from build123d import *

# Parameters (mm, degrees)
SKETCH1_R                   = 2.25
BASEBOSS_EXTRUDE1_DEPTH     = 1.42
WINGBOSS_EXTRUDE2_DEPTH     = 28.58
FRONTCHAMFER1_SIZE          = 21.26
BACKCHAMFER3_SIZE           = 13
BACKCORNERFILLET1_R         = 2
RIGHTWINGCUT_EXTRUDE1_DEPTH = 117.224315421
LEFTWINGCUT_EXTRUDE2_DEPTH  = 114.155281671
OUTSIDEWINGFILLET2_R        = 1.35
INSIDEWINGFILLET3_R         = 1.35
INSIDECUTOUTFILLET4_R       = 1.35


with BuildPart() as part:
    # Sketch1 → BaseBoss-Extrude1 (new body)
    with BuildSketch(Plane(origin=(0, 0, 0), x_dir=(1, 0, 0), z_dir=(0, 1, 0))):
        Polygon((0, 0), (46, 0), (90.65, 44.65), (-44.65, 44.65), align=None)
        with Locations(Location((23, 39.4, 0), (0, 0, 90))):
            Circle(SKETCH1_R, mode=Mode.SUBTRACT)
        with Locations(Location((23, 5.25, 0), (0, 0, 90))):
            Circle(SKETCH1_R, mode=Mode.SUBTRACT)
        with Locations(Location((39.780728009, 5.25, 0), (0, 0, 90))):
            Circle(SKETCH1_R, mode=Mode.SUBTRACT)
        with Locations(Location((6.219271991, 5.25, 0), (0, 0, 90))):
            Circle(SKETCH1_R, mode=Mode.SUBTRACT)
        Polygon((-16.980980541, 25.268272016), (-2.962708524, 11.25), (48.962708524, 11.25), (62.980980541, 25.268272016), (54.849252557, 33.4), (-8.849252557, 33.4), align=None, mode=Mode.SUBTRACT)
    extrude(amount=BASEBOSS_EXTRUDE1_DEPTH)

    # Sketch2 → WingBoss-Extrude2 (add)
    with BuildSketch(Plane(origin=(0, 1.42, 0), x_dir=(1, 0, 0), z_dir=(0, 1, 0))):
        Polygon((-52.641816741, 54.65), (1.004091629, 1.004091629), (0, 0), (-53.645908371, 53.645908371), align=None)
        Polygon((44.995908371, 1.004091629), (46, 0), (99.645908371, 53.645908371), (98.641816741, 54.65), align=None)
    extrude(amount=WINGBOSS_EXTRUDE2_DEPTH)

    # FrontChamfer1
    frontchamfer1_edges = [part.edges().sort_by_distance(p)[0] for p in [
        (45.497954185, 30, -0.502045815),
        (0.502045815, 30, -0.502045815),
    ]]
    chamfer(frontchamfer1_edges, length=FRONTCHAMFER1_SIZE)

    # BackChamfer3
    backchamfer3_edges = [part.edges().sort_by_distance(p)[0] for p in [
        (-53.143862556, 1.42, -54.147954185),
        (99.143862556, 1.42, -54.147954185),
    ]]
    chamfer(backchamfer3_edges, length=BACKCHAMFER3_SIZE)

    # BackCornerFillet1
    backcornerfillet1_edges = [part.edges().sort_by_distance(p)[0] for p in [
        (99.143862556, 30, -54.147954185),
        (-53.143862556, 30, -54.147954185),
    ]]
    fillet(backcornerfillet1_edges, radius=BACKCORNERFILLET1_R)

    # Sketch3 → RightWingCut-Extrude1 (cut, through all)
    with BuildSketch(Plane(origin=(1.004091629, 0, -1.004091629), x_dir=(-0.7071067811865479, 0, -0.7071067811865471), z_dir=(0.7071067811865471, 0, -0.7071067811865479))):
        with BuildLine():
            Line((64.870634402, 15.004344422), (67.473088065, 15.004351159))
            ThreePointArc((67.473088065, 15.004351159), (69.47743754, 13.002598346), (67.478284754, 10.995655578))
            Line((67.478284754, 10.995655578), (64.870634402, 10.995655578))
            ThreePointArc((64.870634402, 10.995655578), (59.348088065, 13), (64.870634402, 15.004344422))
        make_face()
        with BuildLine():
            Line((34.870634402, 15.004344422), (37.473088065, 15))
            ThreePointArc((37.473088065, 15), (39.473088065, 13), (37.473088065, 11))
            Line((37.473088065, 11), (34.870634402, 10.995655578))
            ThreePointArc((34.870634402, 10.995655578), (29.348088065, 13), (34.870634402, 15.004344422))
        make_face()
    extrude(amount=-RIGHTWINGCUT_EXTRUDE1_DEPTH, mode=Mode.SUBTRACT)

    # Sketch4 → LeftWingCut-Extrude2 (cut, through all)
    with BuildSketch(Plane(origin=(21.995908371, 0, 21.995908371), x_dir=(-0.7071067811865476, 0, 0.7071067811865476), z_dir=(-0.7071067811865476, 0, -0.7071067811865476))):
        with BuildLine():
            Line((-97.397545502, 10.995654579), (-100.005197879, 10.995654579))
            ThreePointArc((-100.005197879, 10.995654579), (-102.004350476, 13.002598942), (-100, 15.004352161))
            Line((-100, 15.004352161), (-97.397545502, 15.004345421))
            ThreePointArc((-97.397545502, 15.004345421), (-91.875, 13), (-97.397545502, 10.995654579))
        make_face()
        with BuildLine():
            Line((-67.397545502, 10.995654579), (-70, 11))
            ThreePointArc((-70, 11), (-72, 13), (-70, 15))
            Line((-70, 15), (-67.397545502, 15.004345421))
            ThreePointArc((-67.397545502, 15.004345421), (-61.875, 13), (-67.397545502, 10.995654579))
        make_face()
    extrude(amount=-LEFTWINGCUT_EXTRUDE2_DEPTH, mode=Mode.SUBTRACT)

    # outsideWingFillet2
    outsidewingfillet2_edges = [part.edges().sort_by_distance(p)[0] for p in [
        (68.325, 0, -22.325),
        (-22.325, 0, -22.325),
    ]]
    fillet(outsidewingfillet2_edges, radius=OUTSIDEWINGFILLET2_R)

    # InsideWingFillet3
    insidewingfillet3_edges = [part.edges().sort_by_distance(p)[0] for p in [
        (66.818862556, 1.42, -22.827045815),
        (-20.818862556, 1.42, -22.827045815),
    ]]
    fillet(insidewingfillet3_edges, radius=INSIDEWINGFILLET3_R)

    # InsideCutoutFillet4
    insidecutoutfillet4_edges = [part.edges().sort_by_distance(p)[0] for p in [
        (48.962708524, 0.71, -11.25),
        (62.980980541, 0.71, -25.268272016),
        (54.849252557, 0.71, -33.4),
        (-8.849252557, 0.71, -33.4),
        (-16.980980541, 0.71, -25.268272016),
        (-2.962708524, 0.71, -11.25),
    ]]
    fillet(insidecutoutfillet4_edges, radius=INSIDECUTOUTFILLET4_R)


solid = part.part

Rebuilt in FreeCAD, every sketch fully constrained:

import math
import FreeCAD as App
import Part
import Sketcher
Q = App.Units.Quantity


def edges_at(feature, points):
    """Names of the edges that pass closest to the given points."""
    edges = feature.Shape.Edges
    near = lambda p: min(range(len(edges)), key=lambda i: edges[i].distToShape(Part.Vertex(*p))[0])
    return sorted({f"Edge{near(p) + 1}" for p in points})


def add_polygon(sketch, points):
    """Adds a closed chain of lines whose ends are joined by coincident constraints."""
    first, n = sketch.GeometryCount, len(points)
    for a, b in zip(points, points[1:] + points[:1]):
        sketch.addGeometry(Part.LineSegment(App.Vector(*a, 0), App.Vector(*b, 0)), False)
    for i in range(n):
        sketch.addConstraint(Sketcher.Constraint("Coincident", first + i, 2, first + (i + 1) % n, 1))

doc = App.newDocument("Part")
body = doc.addObject("PartDesign::Body", "Body")

# Sketch on XZ plane
sketch1 = body.newObject("Sketcher::SketchObject", "Sketch")
sketch1.AttachmentSupport = (doc.getObject("XZ_Plane"), [""])
sketch1.MapMode = "FlatFace"
add_polygon(sketch1, [(0, 0), (46, 0), (90.7, -44.6), (-44.6, -44.6)])  # lines 0-3
sketch1.addGeometry(Part.Circle(App.Vector(6.2, -5.2, 0), App.Vector(0, 0, 1), 2.2), False)  # 4
sketch1.addGeometry(Part.Circle(App.Vector(23, -5.2, 0), App.Vector(0, 0, 1), 2.2), False)  # 5
sketch1.addGeometry(Part.Circle(App.Vector(39.8, -5.2, 0), App.Vector(0, 0, 1), 2.2), False)  # 6
add_polygon(sketch1, [(-3, -11.2), (-17, -25.3), (-8.8, -33.4), (54.8, -33.4), (63, -25.3), (49, -11.2)])  # lines 7-12
sketch1.addGeometry(Part.Circle(App.Vector(23, -39.4, 0), App.Vector(0, 0, 1), 2.2), False)  # 13
sketch1.addConstraint(Sketcher.Constraint("Horizontal", 0))
sketch1.addConstraint(Sketcher.Constraint("Horizontal", 2))
sketch1.addConstraint(Sketcher.Constraint("Horizontal", 9))
sketch1.addConstraint(Sketcher.Constraint("Horizontal", 12))
sketch1.addConstraint(Sketcher.Constraint("Coincident", 3, 2, -1, 1))
sketch1.addConstraint(Sketcher.Constraint("Equal", 4, 5))
sketch1.addConstraint(Sketcher.Constraint("Equal", 5, 6))
sketch1.addConstraint(Sketcher.Constraint("Equal", 6, 13))
sketch1.addConstraint(Sketcher.Constraint("Perpendicular", 1, 3))
sketch1.addConstraint(Sketcher.Constraint("Parallel", 3, 7))
sketch1.addConstraint(Sketcher.Constraint("Perpendicular", 7, 8))
sketch1.addConstraint(Sketcher.Constraint("Perpendicular", 8, 10))
sketch1.addConstraint(Sketcher.Constraint("Perpendicular", 10, 11))
sketch1.addConstraint(Sketcher.Constraint("Horizontal", 4, 3, 5, 3))
sketch1.addConstraint(Sketcher.Constraint("Horizontal", 5, 3, 6, 3))
sketch1.addConstraint(Sketcher.Constraint("Horizontal", 7, 2, 10, 2))
sketch1.addConstraint(Sketcher.Constraint("Vertical", 5, 3, 13, 3))
sketch1.addConstraint(Sketcher.Constraint("Equal", 1, 3))
sketch1.addConstraint(Sketcher.Constraint("Diameter", 4, Q("4.5 mm")))
sketch1.addConstraint(Sketcher.Constraint("DistanceX", 0, 1, 0, 2, Q("46 mm")))
sketch1.addConstraint(Sketcher.Constraint("DistanceX", 2, 2, 2, 1, Q("135.3 mm")))
sketch1.addConstraint(Sketcher.Constraint("DistanceX", -1, 1, 5, 3, Q("23 mm")))
sketch1.addConstraint(Sketcher.Constraint("DistanceY", 13, 3, 8, 2, Q("6 mm")))
sketch1.addConstraint(Sketcher.Constraint("DistanceY", 11, 2, 6, 3, Q("6 mm")))
sketch1.addConstraint(Sketcher.Constraint("Distance", 8, Q("11.5 mm")))
sketch1.addConstraint(Sketcher.Constraint("DistanceY", 13, 3, -1, 1, Q("39.4 mm")))
sketch1.addConstraint(Sketcher.Constraint("DistanceY", 1, 2, 6, 3, Q("39.4 mm")))
sketch1.addConstraint(Sketcher.Constraint("DistanceX", 9, 1, 9, 2, Q("63.698505 mm")))
sketch1.addConstraint(Sketcher.Constraint("DistanceX", -1, 1, 4, 3, Q("6.219272 mm")))
sketch1.addConstraint(Sketcher.Constraint("DistanceX", -1, 1, 6, 3, Q("39.780728 mm")))
sketch1.addConstraint(Sketcher.Constraint("DistanceX", 7, 2, -1, 1, Q("16.980981 mm")))
pad1 = body.newObject("PartDesign::Pad", "Pad")
pad1.Profile = sketch1
pad1.Length = 1.42
pad1.Reversed = True

# Sketch on XZ plane
sketch2 = body.newObject("Sketcher::SketchObject", "Sketch001")
sketch2.AttachmentSupport = (doc.getObject("XZ_Plane"), [""])
sketch2.MapMode = "FlatFace"
sketch2.AttachmentOffset = App.Placement(App.Vector(0, 0, -1.42), App.Rotation())
add_polygon(sketch2, [(1, -1), (-52.6, -54.6), (-53.6, -53.6), (0, 0)])  # lines 0-3
add_polygon(sketch2, [(45, -1), (46, 0), (99.6, -53.6), (98.6, -54.6)])  # lines 4-7
sketch2.addConstraint(Sketcher.Constraint("Coincident", 2, 2, -1, 1))
sketch2.addConstraint(Sketcher.Constraint("PointOnObject", 4, 2, -1))
sketch2.addConstraint(Sketcher.Constraint("Perpendicular", 0, 1))
sketch2.addConstraint(Sketcher.Constraint("Perpendicular", 1, 2))
sketch2.addConstraint(Sketcher.Constraint("Perpendicular", 2, 3))
sketch2.addConstraint(Sketcher.Constraint("Perpendicular", 3, 4))
sketch2.addConstraint(Sketcher.Constraint("Perpendicular", 4, 5))
sketch2.addConstraint(Sketcher.Constraint("Perpendicular", 5, 6))
sketch2.addConstraint(Sketcher.Constraint("Perpendicular", 6, 7))
sketch2.addConstraint(Sketcher.Constraint("Horizontal", 1, 2, 5, 2))
sketch2.addConstraint(Sketcher.Constraint("Horizontal", 0, 2, 6, 2))
sketch2.addConstraint(Sketcher.Constraint("Equal", 3, 4))
sketch2.addConstraint(Sketcher.Constraint("DistanceX", -1, 1, 4, 2, Q("46 mm")))
sketch2.addConstraint(Sketcher.Constraint("Distance", 1, Q("1.42 mm")))
sketch2.addConstraint(Sketcher.Constraint("DistanceY", 0, 2, -1, 1, Q("54.65 mm")))
pad2 = body.newObject("PartDesign::Pad", "Pad001")
pad2.Profile = sketch2
pad2.Length = 28.58
pad2.Reversed = True
doc.recompute()

chamfer = body.newObject("PartDesign::Chamfer", "Chamfer")
chamfer.Base = (pad2, edges_at(pad2, [(45.498, 30, -0.502), (0.502, 30, -0.502)]))
chamfer.Size = 21.26
doc.recompute()

chamfer2 = body.newObject("PartDesign::Chamfer", "Chamfer001")
chamfer2.Base = (chamfer, edges_at(chamfer, [(-53.144, 1.42, -54.148), (99.144, 1.42, -54.148)]))
chamfer2.Size = 13
doc.recompute()

fillet = body.newObject("PartDesign::Fillet", "Fillet")
fillet.Base = (chamfer2, edges_at(chamfer2, [(99.144, 30, -54.148), (-53.144, 30, -54.148)]))
fillet.Radius = 2

# Sketch on an angled plane
sketch3 = body.newObject("Sketcher::SketchObject", "Sketch002")
sketch3.Placement = App.Placement(App.Vector(1.004092, 0, -1.004092), App.Rotation(App.Vector(-0.707106781, 0, -0.707106781), App.Vector(0, 0.999999999, 0), App.Vector(0.707106781, 0, -0.707106781), "ZXY"))
sketch3.addGeometry(Part.LineSegment(App.Vector(67.5, 15, 0), App.Vector(64.9, 15, 0)), False)
sketch3.addGeometry(Part.ArcOfCircle(Part.Circle(App.Vector(62.5, 13, 0), App.Vector(0, 0, 1), 3.1), math.radians(40), math.radians(320)), False)
sketch3.addGeometry(Part.LineSegment(App.Vector(64.9, 11, 0), App.Vector(67.5, 11, 0)), False)
sketch3.addGeometry(Part.ArcOfCircle(Part.Circle(App.Vector(67.5, 13, 0), App.Vector(0, 0, 1), 2), math.radians(-90), math.radians(90)), False)
sketch3.addGeometry(Part.LineSegment(App.Vector(37.5, 15, 0), App.Vector(34.9, 15, 0)), False)
sketch3.addGeometry(Part.ArcOfCircle(Part.Circle(App.Vector(32.5, 13, 0), App.Vector(0, 0, 1), 3.1), math.radians(40), math.radians(320)), False)
sketch3.addGeometry(Part.LineSegment(App.Vector(34.9, 11, 0), App.Vector(37.5, 11, 0)), False)
sketch3.addGeometry(Part.ArcOfCircle(Part.Circle(App.Vector(37.5, 13, 0), App.Vector(0, 0, 1), 2), math.radians(-90), math.radians(90)), False)
sketch3.addConstraint(Sketcher.Constraint("Coincident", 0, 2, 1, 1))
sketch3.addConstraint(Sketcher.Constraint("Coincident", 1, 2, 2, 1))
sketch3.addConstraint(Sketcher.Constraint("Coincident", 2, 2, 3, 1))
sketch3.addConstraint(Sketcher.Constraint("Coincident", 3, 2, 0, 1))
sketch3.addConstraint(Sketcher.Constraint("Coincident", 4, 2, 5, 1))
sketch3.addConstraint(Sketcher.Constraint("Coincident", 5, 2, 6, 1))
sketch3.addConstraint(Sketcher.Constraint("Coincident", 6, 2, 7, 1))
sketch3.addConstraint(Sketcher.Constraint("Coincident", 7, 2, 4, 1))
sketch3.addConstraint(Sketcher.Constraint("Horizontal", 2))
sketch3.addConstraint(Sketcher.Constraint("Equal", 1, 5))
sketch3.addConstraint(Sketcher.Constraint("Horizontal", 1, 3, 3, 3))
sketch3.addConstraint(Sketcher.Constraint("Horizontal", 3, 3, 5, 3))
sketch3.addConstraint(Sketcher.Constraint("Horizontal", 5, 3, 7, 3))
sketch3.addConstraint(Sketcher.Constraint("Horizontal", 0, 2, 4, 2))
sketch3.addConstraint(Sketcher.Constraint("Horizontal", 2, 2, 5, 2))
sketch3.addConstraint(Sketcher.Constraint("Vertical", 0, 2, 1, 2))
sketch3.addConstraint(Sketcher.Constraint("Vertical", 7, 3, 6, 2))
sketch3.addConstraint(Sketcher.Constraint("Vertical", 6, 2, 7, 2))
sketch3.addConstraint(Sketcher.Constraint("Radius", 7, Q("2 mm")))
sketch3.addConstraint(Sketcher.Constraint("DistanceY", -1, 1, 1, 3, Q("13 mm")))
sketch3.addConstraint(Sketcher.Constraint("Radius", 1, Q("3.125 mm")))
sketch3.addConstraint(Sketcher.Constraint("DistanceX", 1, 3, 3, 3, Q("5 mm")))
sketch3.addConstraint(Sketcher.Constraint("DistanceX", 5, 3, 1, 3, Q("30 mm")))
sketch3.addConstraint(Sketcher.Constraint("DistanceX", 5, 3, 7, 3, Q("5 mm")))
sketch3.addConstraint(Sketcher.Constraint("DistanceX", 1, 3, 3, 2, Q("5 mm")))
sketch3.addConstraint(Sketcher.Constraint("Radius", 3, Q("2.004351 mm")))
sketch3.addConstraint(Sketcher.Constraint("DistanceX", 2, 1, 2, 2, Q("2.60765 mm")))
sketch3.addConstraint(Sketcher.Constraint("DistanceX", -1, 1, 1, 3, Q("62.473088 mm")))
pocket1 = body.newObject("PartDesign::Pocket", "Pocket")
pocket1.Profile = sketch3
pocket1.Type = "ThroughAll"

# Sketch on an angled plane
sketch4 = body.newObject("Sketcher::SketchObject", "Sketch003")
sketch4.Placement = App.Placement(App.Vector(21.995908, 0, 21.995908), App.Rotation(App.Vector(-0.707106781, 0, 0.707106781), App.Vector(0, 0.999999999, 0), App.Vector(-0.707106781, 0, -0.707106781), "ZXY"))
sketch4.addGeometry(Part.LineSegment(App.Vector(-100, 11, 0), App.Vector(-97.4, 11, 0)), False)
sketch4.addGeometry(Part.ArcOfCircle(Part.Circle(App.Vector(-95, 13, 0), App.Vector(0, 0, 1), 3.1), math.radians(-140), math.radians(140)), False)
sketch4.addGeometry(Part.LineSegment(App.Vector(-97.4, 15, 0), App.Vector(-100, 15, 0)), False)
sketch4.addGeometry(Part.ArcOfCircle(Part.Circle(App.Vector(-100, 13, 0), App.Vector(0, 0, 1), 2), math.radians(90), math.radians(270)), False)
sketch4.addGeometry(Part.LineSegment(App.Vector(-70, 11, 0), App.Vector(-67.4, 11, 0)), False)
sketch4.addGeometry(Part.ArcOfCircle(Part.Circle(App.Vector(-65, 13, 0), App.Vector(0, 0, 1), 3.1), math.radians(-140), math.radians(140)), False)
sketch4.addGeometry(Part.LineSegment(App.Vector(-67.4, 15, 0), App.Vector(-70, 15, 0)), False)
sketch4.addGeometry(Part.ArcOfCircle(Part.Circle(App.Vector(-70, 13, 0), App.Vector(0, 0, 1), 2), math.radians(90), math.radians(270)), False)
sketch4.addConstraint(Sketcher.Constraint("Coincident", 0, 2, 1, 1))
sketch4.addConstraint(Sketcher.Constraint("Coincident", 1, 2, 2, 1))
sketch4.addConstraint(Sketcher.Constraint("Coincident", 2, 2, 3, 1))
sketch4.addConstraint(Sketcher.Constraint("Coincident", 3, 2, 0, 1))
sketch4.addConstraint(Sketcher.Constraint("Coincident", 4, 2, 5, 1))
sketch4.addConstraint(Sketcher.Constraint("Coincident", 5, 2, 6, 1))
sketch4.addConstraint(Sketcher.Constraint("Coincident", 6, 2, 7, 1))
sketch4.addConstraint(Sketcher.Constraint("Coincident", 7, 2, 4, 1))
sketch4.addConstraint(Sketcher.Constraint("Horizontal", 0))
sketch4.addConstraint(Sketcher.Constraint("Equal", 1, 5))
sketch4.addConstraint(Sketcher.Constraint("Horizontal", 1, 3, 3, 3))
sketch4.addConstraint(Sketcher.Constraint("Horizontal", 3, 3, 5, 3))
sketch4.addConstraint(Sketcher.Constraint("Horizontal", 5, 3, 7, 3))
sketch4.addConstraint(Sketcher.Constraint("Horizontal", 3, 2, 4, 2))
sketch4.addConstraint(Sketcher.Constraint("Horizontal", 1, 2, 5, 2))
sketch4.addConstraint(Sketcher.Constraint("Vertical", 0, 2, 1, 2))
sketch4.addConstraint(Sketcher.Constraint("Vertical", 3, 3, 2, 2))
sketch4.addConstraint(Sketcher.Constraint("Vertical", 7, 3, 6, 2))
sketch4.addConstraint(Sketcher.Constraint("Vertical", 6, 2, 7, 2))
sketch4.addConstraint(Sketcher.Constraint("Radius", 7, Q("2 mm")))
sketch4.addConstraint(Sketcher.Constraint("DistanceX", 1, 3, -1, 1, Q("95 mm")))
sketch4.addConstraint(Sketcher.Constraint("DistanceY", -1, 1, 1, 3, Q("13 mm")))
sketch4.addConstraint(Sketcher.Constraint("DistanceX", 3, 3, -1, 1, Q("100 mm")))
sketch4.addConstraint(Sketcher.Constraint("DistanceX", 5, 3, -1, 1, Q("65 mm")))
sketch4.addConstraint(Sketcher.Constraint("DistanceX", 7, 3, -1, 1, Q("70 mm")))
sketch4.addConstraint(Sketcher.Constraint("Radius", 1, Q("3.125 mm")))
sketch4.addConstraint(Sketcher.Constraint("Radius", 3, Q("2.004352 mm")))
sketch4.addConstraint(Sketcher.Constraint("DistanceX", 0, 1, 0, 2, Q("2.607652 mm")))
pocket2 = body.newObject("PartDesign::Pocket", "Pocket001")
pocket2.Profile = sketch4
pocket2.Type = "ThroughAll"
doc.recompute()

fillet2 = body.newObject("PartDesign::Fillet", "Fillet001")
fillet2.Base = (pocket2, edges_at(pocket2, [(68.325, 0, -22.325), (-22.325, 0, -22.325)]))
fillet2.Radius = 1.35
doc.recompute()

fillet3 = body.newObject("PartDesign::Fillet", "Fillet002")
fillet3.Base = (fillet2, edges_at(fillet2, [(66.819, 1.42, -22.827), (-20.819, 1.42, -22.827)]))
fillet3.Radius = 1.35
doc.recompute()

fillet4 = body.newObject("PartDesign::Fillet", "Fillet003")
fillet4.Base = (fillet3, edges_at(fillet3, [
    (48.963, 0.71, -11.25),
    (62.981, 0.71, -25.268),
    (54.849, 0.71, -33.4),
    (-8.849, 0.71, -33.4),
    (-16.981, 0.71, -25.268),
    (-2.963, 0.71, -11.25),
]))
fillet4.Radius = 1.35

doc.recompute()
